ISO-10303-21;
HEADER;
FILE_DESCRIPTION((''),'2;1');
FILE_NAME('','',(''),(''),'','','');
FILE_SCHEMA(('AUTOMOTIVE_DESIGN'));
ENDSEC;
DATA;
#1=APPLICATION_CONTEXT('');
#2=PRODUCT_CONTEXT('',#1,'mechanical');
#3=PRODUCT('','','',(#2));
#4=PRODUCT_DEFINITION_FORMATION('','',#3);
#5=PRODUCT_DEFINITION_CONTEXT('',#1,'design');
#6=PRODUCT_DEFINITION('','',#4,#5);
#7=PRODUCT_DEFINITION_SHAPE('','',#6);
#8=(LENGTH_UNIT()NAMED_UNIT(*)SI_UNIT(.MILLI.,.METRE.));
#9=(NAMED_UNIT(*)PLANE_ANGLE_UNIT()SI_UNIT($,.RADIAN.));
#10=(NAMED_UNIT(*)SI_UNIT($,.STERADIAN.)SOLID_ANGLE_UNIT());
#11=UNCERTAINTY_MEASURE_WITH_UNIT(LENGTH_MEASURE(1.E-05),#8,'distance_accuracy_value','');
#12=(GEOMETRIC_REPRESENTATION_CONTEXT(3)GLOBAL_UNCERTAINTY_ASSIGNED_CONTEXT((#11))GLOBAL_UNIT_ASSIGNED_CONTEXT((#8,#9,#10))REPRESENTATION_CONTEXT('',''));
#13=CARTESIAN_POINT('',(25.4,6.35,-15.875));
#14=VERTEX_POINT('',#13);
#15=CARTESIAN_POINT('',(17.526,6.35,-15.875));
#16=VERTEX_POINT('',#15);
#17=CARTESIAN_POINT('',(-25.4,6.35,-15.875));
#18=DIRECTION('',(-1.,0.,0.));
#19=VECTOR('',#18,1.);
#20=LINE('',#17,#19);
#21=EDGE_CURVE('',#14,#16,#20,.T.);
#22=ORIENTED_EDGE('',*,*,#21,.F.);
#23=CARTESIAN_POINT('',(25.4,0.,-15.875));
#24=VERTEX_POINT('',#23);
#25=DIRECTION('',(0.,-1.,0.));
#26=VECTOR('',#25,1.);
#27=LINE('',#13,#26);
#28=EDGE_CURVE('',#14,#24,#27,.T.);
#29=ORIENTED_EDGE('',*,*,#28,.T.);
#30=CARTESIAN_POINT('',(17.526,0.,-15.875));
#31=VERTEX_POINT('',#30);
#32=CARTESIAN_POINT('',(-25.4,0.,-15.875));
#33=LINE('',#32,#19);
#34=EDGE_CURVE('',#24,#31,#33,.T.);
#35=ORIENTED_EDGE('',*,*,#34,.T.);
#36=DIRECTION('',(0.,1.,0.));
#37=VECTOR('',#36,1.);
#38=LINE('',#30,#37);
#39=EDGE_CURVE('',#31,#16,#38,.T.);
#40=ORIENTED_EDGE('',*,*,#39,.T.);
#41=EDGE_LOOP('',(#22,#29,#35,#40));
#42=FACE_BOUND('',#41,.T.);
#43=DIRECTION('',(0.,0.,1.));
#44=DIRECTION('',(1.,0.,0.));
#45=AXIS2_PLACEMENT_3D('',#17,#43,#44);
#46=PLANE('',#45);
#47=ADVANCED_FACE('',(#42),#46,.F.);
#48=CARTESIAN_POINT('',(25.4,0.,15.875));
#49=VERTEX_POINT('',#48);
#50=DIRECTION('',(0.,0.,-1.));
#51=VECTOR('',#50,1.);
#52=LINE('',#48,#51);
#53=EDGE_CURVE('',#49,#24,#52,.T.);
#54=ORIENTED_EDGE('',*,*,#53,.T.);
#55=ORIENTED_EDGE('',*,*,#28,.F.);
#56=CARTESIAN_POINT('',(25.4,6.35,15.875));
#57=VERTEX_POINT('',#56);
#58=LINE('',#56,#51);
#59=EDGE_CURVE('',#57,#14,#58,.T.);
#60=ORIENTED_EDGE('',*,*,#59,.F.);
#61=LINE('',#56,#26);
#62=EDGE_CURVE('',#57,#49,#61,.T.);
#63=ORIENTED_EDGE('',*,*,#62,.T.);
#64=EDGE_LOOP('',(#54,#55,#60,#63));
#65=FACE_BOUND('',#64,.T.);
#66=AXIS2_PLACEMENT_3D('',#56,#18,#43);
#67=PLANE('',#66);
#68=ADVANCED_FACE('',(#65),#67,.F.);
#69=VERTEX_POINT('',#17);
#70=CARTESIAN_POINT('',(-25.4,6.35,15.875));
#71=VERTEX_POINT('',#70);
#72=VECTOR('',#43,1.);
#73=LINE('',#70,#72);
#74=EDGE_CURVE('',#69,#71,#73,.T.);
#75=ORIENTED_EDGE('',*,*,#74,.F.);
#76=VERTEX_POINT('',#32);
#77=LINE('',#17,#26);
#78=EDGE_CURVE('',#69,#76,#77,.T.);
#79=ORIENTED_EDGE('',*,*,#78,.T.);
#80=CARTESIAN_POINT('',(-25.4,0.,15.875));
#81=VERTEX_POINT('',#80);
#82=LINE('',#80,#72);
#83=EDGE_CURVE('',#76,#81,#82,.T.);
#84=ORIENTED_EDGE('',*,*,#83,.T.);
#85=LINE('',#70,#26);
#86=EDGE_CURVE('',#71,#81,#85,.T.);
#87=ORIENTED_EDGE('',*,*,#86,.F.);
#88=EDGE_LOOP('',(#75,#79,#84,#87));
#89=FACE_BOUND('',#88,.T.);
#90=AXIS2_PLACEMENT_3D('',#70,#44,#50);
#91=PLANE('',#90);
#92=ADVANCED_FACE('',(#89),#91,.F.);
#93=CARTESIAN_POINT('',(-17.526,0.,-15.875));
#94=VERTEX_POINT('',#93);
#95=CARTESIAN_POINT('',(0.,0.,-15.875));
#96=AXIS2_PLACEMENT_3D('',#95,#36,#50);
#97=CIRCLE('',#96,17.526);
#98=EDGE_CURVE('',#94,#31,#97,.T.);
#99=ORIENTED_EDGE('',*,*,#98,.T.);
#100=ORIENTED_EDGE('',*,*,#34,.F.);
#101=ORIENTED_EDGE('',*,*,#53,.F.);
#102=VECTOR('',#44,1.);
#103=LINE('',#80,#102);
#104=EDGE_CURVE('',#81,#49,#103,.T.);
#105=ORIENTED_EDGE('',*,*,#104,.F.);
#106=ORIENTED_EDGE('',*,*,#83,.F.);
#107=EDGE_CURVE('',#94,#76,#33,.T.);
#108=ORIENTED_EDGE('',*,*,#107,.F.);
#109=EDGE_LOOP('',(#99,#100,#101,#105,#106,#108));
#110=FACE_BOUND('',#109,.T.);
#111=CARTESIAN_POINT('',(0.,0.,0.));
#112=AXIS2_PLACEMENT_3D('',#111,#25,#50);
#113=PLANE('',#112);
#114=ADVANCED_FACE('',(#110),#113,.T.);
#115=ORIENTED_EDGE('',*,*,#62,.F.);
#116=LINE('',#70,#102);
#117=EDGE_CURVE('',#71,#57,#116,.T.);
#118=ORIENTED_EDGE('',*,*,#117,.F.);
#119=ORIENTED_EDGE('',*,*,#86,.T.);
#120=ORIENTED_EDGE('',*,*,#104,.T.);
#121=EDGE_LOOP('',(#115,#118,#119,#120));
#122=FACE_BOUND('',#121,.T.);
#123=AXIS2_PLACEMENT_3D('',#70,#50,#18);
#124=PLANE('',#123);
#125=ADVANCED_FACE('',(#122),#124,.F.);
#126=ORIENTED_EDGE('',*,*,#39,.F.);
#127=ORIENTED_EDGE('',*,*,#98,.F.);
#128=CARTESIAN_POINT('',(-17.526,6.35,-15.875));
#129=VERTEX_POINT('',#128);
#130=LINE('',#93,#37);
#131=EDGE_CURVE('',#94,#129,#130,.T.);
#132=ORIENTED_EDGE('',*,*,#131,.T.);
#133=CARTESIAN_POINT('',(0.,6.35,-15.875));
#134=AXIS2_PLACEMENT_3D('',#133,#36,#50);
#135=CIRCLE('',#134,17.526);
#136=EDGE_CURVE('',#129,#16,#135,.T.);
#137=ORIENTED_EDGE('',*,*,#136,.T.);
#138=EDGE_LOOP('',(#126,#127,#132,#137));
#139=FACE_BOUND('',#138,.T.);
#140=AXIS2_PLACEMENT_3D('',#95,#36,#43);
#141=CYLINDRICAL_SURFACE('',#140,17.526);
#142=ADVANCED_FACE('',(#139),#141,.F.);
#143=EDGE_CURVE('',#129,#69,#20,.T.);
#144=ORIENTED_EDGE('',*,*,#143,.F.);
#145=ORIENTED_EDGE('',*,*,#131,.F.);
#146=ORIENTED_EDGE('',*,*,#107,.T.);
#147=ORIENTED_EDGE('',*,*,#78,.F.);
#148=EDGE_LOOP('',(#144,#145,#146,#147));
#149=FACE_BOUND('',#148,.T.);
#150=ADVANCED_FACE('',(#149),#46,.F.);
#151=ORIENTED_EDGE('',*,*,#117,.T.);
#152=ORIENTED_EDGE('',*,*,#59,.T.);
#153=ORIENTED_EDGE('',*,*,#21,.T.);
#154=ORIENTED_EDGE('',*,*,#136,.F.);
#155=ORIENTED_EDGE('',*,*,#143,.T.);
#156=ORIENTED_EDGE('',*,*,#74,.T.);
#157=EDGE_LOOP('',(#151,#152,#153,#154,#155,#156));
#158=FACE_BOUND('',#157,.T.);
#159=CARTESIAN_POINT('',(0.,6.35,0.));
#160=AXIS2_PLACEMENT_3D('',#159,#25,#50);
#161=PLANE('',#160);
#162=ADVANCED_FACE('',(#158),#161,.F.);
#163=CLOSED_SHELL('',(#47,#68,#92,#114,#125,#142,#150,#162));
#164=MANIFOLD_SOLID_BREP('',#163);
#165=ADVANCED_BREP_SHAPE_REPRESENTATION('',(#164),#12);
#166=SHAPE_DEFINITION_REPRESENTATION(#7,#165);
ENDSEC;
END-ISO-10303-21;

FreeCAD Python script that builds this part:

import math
import FreeCAD as App
import Part
import Sketcher
from FreeCAD import Vector
Q = App.Units.Quantity


def add_polygon(sketch, points):
    """Adds a closed chain of lines whose ends are joined by coincident constraints."""
    first, n = sketch.GeometryCount, len(points)
    for a, b in zip(points, points[1:] + points[:1]):
        sketch.addGeometry(Part.LineSegment(App.Vector(*a, 0), App.Vector(*b, 0)), False)
    for i in range(n):
        sketch.addConstraint(Sketcher.Constraint("Coincident", first + i, 2, first + (i + 1) % n, 1))

doc = App.newDocument("Part")
body = doc.addObject("PartDesign::Body", "Body")

# Sketch on XZ plane
sketch1 = body.newObject("Sketcher::SketchObject", "Sketch")
sketch1.AttachmentSupport = (doc.getObject("XZ_Plane"), [""])
sketch1.MapMode = "FlatFace"
add_polygon(sketch1, [(-25, -16), (-25, 16), (25, 16), (25, -16)])  # lines 0-3
sketch1.addConstraint(Sketcher.Constraint("Vertical", 0))
sketch1.addConstraint(Sketcher.Constraint("Horizontal", 1))
sketch1.addConstraint(Sketcher.Constraint("Vertical", 2))
sketch1.addConstraint(Sketcher.Constraint("Horizontal", 3))
sketch1.addConstraint(Sketcher.Constraint("Symmetric", 0, 2, 2, 2, -1, 1))
sketch1.addConstraint(Sketcher.Constraint("DistanceX", 1, 1, 1, 2, Q("2 in")))
sketch1.addConstraint(Sketcher.Constraint("DistanceY", 0, 1, 0, 2, Q("1.25 in")))
pad1 = body.newObject("PartDesign::Pad", "Pad")
pad1.Profile = sketch1
pad1.Length = Q("0.25 in")
pad1.Reversed = True

# Sketch on XZ plane
sketch2 = body.newObject("Sketcher::SketchObject", "Sketch001")
sketch2.AttachmentSupport = (doc.getObject("XZ_Plane"), [""])
sketch2.MapMode = "FlatFace"
sketch2.AttachmentOffset = App.Placement(Vector(0, 0, -0.25 * 25.4), App.Rotation())
sketch2.addGeometry(Part.LineSegment(Vector(18, -16, 0), Vector(-18, -16, 0)), False)
sketch2.addGeometry(Part.ArcOfCircle(Part.Circle(Vector(0, -16, 0), Vector(0, 0, 1), 18), math.radians(0), math.radians(180)), False)
sketch2.addConstraint(Sketcher.Constraint("Coincident", 0, 1, 1, 1))
sketch2.addConstraint(Sketcher.Constraint("Coincident", 1, 2, 0, 2))
sketch2.addConstraint(Sketcher.Constraint("Horizontal", 0))
sketch2.addConstraint(Sketcher.Constraint("PointOnObject", 1, 3, -2))
sketch2.addConstraint(Sketcher.Constraint("Horizontal", 1, 3, 0, 1))
sketch2.addConstraint(Sketcher.Constraint("Radius", 1, Q("0.69 in")))
sketch2.addConstraint(Sketcher.Constraint("DistanceY", 1, 3, -1, 1, Q("0.625 in")))
pocket1 = body.newObject("PartDesign::Pocket", "Pocket")
pocket1.Profile = sketch2
pocket1.Length = Q("0.25 in")
pocket1.Reversed = True

doc.recompute()
